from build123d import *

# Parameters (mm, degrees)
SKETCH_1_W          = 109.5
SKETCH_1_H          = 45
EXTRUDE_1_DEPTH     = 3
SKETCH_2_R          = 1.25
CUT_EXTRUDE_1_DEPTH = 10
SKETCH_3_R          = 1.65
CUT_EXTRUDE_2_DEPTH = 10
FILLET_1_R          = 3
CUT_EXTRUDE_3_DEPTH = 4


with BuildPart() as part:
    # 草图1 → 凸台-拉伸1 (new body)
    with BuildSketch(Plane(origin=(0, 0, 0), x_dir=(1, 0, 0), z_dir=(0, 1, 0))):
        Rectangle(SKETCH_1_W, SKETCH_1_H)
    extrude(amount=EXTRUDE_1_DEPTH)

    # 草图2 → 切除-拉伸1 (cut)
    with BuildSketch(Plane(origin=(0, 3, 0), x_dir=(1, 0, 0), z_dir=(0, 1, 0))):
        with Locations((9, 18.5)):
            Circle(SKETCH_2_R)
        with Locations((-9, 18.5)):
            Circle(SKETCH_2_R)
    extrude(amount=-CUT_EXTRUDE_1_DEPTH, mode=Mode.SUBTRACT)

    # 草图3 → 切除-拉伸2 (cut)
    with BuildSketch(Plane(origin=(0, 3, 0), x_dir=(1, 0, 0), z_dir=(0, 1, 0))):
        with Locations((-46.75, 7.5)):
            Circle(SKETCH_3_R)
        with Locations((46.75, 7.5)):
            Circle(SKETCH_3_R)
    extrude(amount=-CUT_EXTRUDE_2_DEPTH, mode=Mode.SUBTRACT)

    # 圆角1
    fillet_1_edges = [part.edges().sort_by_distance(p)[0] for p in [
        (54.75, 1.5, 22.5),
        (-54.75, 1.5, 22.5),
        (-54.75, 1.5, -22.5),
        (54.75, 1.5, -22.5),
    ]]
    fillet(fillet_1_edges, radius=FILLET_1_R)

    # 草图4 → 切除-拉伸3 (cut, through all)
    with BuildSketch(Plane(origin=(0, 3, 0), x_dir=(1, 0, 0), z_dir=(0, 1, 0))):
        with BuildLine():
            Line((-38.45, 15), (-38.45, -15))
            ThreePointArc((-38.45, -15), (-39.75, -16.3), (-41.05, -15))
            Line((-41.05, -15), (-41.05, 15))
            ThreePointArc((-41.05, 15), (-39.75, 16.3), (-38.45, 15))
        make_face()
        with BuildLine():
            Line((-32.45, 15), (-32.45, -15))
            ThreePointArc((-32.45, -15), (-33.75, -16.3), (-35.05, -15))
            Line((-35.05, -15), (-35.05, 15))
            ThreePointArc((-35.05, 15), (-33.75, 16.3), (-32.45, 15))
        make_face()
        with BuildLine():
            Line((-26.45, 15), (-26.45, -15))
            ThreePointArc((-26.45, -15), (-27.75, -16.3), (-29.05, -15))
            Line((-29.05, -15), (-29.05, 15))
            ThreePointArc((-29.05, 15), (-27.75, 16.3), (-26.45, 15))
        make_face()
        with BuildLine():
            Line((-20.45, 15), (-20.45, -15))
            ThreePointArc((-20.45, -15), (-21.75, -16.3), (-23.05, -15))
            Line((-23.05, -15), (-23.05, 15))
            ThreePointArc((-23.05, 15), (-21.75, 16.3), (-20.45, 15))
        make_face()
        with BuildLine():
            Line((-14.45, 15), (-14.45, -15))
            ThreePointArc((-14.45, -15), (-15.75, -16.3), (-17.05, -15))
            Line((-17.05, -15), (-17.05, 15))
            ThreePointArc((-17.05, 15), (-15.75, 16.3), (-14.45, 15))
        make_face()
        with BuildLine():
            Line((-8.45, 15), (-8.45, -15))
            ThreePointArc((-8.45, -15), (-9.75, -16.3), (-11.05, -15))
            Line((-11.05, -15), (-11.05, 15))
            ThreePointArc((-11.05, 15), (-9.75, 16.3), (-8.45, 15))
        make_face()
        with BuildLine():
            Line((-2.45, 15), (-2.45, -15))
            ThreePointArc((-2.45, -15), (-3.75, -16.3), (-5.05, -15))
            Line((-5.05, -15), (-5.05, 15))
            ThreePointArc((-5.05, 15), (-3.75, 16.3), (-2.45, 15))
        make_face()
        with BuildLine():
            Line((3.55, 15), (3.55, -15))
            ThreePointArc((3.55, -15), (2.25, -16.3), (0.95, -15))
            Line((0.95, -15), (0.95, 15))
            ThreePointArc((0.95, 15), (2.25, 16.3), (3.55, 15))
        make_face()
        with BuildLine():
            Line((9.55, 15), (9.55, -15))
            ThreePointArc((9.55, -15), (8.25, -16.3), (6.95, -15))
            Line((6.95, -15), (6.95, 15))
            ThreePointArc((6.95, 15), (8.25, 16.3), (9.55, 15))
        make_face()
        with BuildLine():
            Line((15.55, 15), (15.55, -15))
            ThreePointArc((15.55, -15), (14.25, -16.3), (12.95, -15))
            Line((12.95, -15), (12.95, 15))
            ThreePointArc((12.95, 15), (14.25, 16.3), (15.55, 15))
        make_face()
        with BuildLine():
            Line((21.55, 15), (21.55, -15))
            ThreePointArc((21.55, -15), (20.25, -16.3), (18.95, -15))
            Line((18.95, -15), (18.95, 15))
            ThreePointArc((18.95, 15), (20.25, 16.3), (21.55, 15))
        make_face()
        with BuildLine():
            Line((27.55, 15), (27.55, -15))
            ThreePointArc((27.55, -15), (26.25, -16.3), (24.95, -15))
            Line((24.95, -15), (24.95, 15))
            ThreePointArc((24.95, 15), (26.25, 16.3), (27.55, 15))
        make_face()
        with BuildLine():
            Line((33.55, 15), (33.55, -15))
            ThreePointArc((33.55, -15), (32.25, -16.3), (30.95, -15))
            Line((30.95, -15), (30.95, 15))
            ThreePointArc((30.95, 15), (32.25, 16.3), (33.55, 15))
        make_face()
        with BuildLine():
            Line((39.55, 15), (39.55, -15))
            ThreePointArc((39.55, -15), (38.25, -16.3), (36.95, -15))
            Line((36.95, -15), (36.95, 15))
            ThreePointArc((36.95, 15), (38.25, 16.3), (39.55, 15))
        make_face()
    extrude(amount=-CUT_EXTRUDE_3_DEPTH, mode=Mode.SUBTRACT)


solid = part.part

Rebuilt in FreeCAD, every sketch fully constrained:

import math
import FreeCAD as App
import Part
import Sketcher

V = App.Vector
Q = App.Units.Quantity


def edges_at(feature, points):
    """Names of the edges that pass closest to the given points."""
    edges = feature.Shape.Edges
    near = lambda p: min(range(len(edges)), key=lambda i: edges[i].distToShape(Part.Vertex(*p))[0])
    return sorted({f"Edge{near(p) + 1}" for p in points})

doc = App.newDocument("Part")
params = doc.addObject("Spreadsheet::Sheet", "Params")
for row, (alias, value) in enumerate([
    ("sketch1_height", "45 mm"),
    ("sketch1_width", "109.5 mm"),
    ("pad1_length", "3 mm"),
    ("sketch2_diameter", "2.5 mm"),
    ("pocket1_length", "10 mm"),
    ("sketch3_diameter", "3.3 mm"),
    ("pocket2_length", "10 mm"),
    ("fillet_radius", "3 mm"),
    ("sketch4_radius", "1.3 mm"),
    ("sketch4_height", "30 mm"),
], start=1):
    params.set(f"A{row}", alias)
    params.set(f"B{row}", "=" + value)
    params.setAlias(f"B{row}", alias)

body = doc.addObject("PartDesign::Body", "Body")

sketch1 = doc.addObject("Sketcher::SketchObject", "Sketch")
body.addObject(sketch1)
sketch1.AttachmentSupport = (doc.XZ_Plane, [""])
sketch1.MapMode = "FlatFace"
sketch1.addGeometry(Part.LineSegment(V(-55, -22, 0), V(-55, 22, 0)), False)
sketch1.addGeometry(Part.LineSegment(V(-55, 22, 0), V(55, 22, 0)), False)
sketch1.addGeometry(Part.LineSegment(V(55, 22, 0), V(55, -22, 0)), False)
sketch1.addGeometry(Part.LineSegment(V(55, -22, 0), V(-55, -22, 0)), False)
sketch1.addConstraint(Sketcher.Constraint("Coincident", 0, 2, 1, 1))
sketch1.addConstraint(Sketcher.Constraint("Coincident", 1, 2, 2, 1))
sketch1.addConstraint(Sketcher.Constraint("Coincident", 2, 2, 3, 1))
sketch1.addConstraint(Sketcher.Constraint("Coincident", 3, 2, 0, 1))
sketch1.addConstraint(Sketcher.Constraint("Vertical", 0))
sketch1.addConstraint(Sketcher.Constraint("Horizontal", 1))
sketch1.addConstraint(Sketcher.Constraint("Vertical", 2))
sketch1.addConstraint(Sketcher.Constraint("Horizontal", 3))
sketch1.addConstraint(Sketcher.Constraint("Symmetric", 0, 2, 2, 2, -1, 1))
sketch1.addConstraint(Sketcher.Constraint("DistanceY", 0, 1, 0, 2, Q("45 mm")))
sketch1.addConstraint(Sketcher.Constraint("DistanceX", 1, 1, 1, 2, Q("109.5 mm")))
sketch1.setExpression("Constraints[9]", "Params.sketch1_height")
sketch1.setExpression("Constraints[10]", "Params.sketch1_width")
pad1 = doc.addObject("PartDesign::Pad", "Pad")
body.addObject(pad1)
pad1.Profile = sketch1
pad1.setExpression("Length", "Params.pad1_length")
pad1.Reversed = True

sketch2 = doc.addObject("Sketcher::SketchObject", "Sketch001")
body.addObject(sketch2)
sketch2.AttachmentSupport = (doc.XZ_Plane, [""])
sketch2.MapMode = "FlatFace"
sketch2.AttachmentOffset = App.Placement(V(0, 0, -3), App.Rotation())
sketch2.addGeometry(Part.Circle(V(9, -18.5, 0), V(0, 0, 1), 1.2), False)
sketch2.addGeometry(Part.Circle(V(-9, -18.5, 0), V(0, 0, 1), 1.2), False)
sketch2.addConstraint(Sketcher.Constraint("Equal", 0, 1))
sketch2.addConstraint(Sketcher.Constraint("Symmetric", 0, 3, 1, 3, -2))
sketch2.addConstraint(Sketcher.Constraint("Diameter", 0, Q("2.5 mm")))
sketch2.addConstraint(Sketcher.Constraint("DistanceX", -1, 1, 0, 3, Q("9 mm")))
sketch2.addConstraint(Sketcher.Constraint("DistanceY", 0, 3, -1, 1, Q("18.5 mm")))
sketch2.setExpression("Constraints[2]", "Params.sketch2_diameter")
pocket1 = doc.addObject("PartDesign::Pocket", "Pocket")
body.addObject(pocket1)
pocket1.Profile = sketch2
pocket1.setExpression("Length", "Params.pocket1_length")
pocket1.Reversed = True

sketch3 = doc.addObject("Sketcher::SketchObject", "Sketch002")
body.addObject(sketch3)
sketch3.AttachmentSupport = (doc.XZ_Plane, [""])
sketch3.MapMode = "FlatFace"
sketch3.AttachmentOffset = App.Placement(V(0, 0, -3), App.Rotation())
sketch3.addGeometry(Part.Circle(V(-46.8, -7.5, 0), V(0, 0, 1), 1.6), False)
sketch3.addGeometry(Part.Circle(V(46.8, -7.5, 0), V(0, 0, 1), 1.6), False)
sketch3.addConstraint(Sketcher.Constraint("Equal", 0, 1))
sketch3.addConstraint(Sketcher.Constraint("Symmetric", 0, 3, 1, 3, -2))
sketch3.addConstraint(Sketcher.Constraint("Diameter", 0, Q("3.3 mm")))
sketch3.addConstraint(Sketcher.Constraint("DistanceY", 0, 3, -1, 1, Q("7.5 mm")))
sketch3.addConstraint(Sketcher.Constraint("DistanceX", 0, 3, 1, 3, Q("93.5 mm")))
sketch3.setExpression("Constraints[2]", "Params.sketch3_diameter")
pocket2 = doc.addObject("PartDesign::Pocket", "Pocket001")
body.addObject(pocket2)
pocket2.Profile = sketch3
pocket2.setExpression("Length", "Params.pocket2_length")
pocket2.Reversed = True
doc.recompute()

fillet = doc.addObject("PartDesign::Fillet", "Fillet")
body.addObject(fillet)
fillet.Base = (pocket2, edges_at(pocket2, [
    (54.75, 1.5, 22.5),
    (-54.75, 1.5, 22.5),
    (-54.75, 1.5, -22.5),
    (54.75, 1.5, -22.5),
]))
fillet.setExpression("Radius", "Params.fillet_radius")

sketch4 = doc.addObject("Sketcher::SketchObject", "Sketch003")
body.addObject(sketch4)
sketch4.AttachmentSupport = (doc.XZ_Plane, [""])
sketch4.MapMode = "FlatFace"
sketch4.AttachmentOffset = App.Placement(V(0, 0, -3), App.Rotation())
sketch4.addGeometry(Part.LineSegment(V(-38.5, 15, 0), V(-38.5, -15, 0)), False)
sketch4.addGeometry(Part.ArcOfCircle(Part.Circle(V(-39.8, -15, 0), V(0, 0, 1), 1.3), math.radians(180), math.radians(360)), False)
sketch4.addGeometry(Part.LineSegment(V(-41, -15, 0), V(-41, 15, 0)), False)
sketch4.addGeometry(Part.ArcOfCircle(Part.Circle(V(-39.8, 15, 0), V(0, 0, 1), 1.3), math.radians(0), math.radians(180)), False)
sketch4.addGeometry(Part.LineSegment(V(-32.5, 15, 0), V(-32.5, -15, 0)), False)
sketch4.addGeometry(Part.ArcOfCircle(Part.Circle(V(-33.8, -15, 0), V(0, 0, 1), 1.3), math.radians(180), math.radians(360)), False)
sketch4.addGeometry(Part.LineSegment(V(-35, -15, 0), V(-35, 15, 0)), False)
sketch4.addGeometry(Part.ArcOfCircle(Part.Circle(V(-33.8, 15, 0), V(0, 0, 1), 1.3), math.radians(0), math.radians(180)), False)
sketch4.addGeometry(Part.LineSegment(V(-26.4, 15, 0), V(-26.4, -15, 0)), False)
sketch4.addGeometry(Part.ArcOfCircle(Part.Circle(V(-27.8, -15, 0), V(0, 0, 1), 1.3), math.radians(180), math.radians(360)), False)
sketch4.addGeometry(Part.LineSegment(V(-29.1, -15, 0), V(-29.1, 15, 0)), False)
sketch4.addGeometry(Part.ArcOfCircle(Part.Circle(V(-27.8, 15, 0), V(0, 0, 1), 1.3), math.radians(0), math.radians(180)), False)
sketch4.addGeometry(Part.LineSegment(V(-20.4, 15, 0), V(-20.4, -15, 0)), False)
sketch4.addGeometry(Part.ArcOfCircle(Part.Circle(V(-21.8, -15, 0), V(0, 0, 1), 1.3), math.radians(180), math.radians(360)), False)
sketch4.addGeometry(Part.LineSegment(V(-23.1, -15, 0), V(-23.1, 15, 0)), False)
sketch4.addGeometry(Part.ArcOfCircle(Part.Circle(V(-21.8, 15, 0), V(0, 0, 1), 1.3), math.radians(0), math.radians(180)), False)
sketch4.addGeometry(Part.LineSegment(V(-14.4, 15, 0), V(-14.4, -15, 0)), False)
sketch4.addGeometry(Part.ArcOfCircle(Part.Circle(V(-15.8, -15, 0), V(0, 0, 1), 1.3), math.radians(180), math.radians(360)), False)
sketch4.addGeometry(Part.LineSegment(V(-17.1, -15, 0), V(-17.1, 15, 0)), False)
sketch4.addGeometry(Part.ArcOfCircle(Part.Circle(V(-15.8, 15, 0), V(0, 0, 1), 1.3), math.radians(0), math.radians(180)), False)
sketch4.addGeometry(Part.LineSegment(V(-8.4, 15, 0), V(-8.4, -15, 0)), False)
sketch4.addGeometry(Part.ArcOfCircle(Part.Circle(V(-9.8, -15, 0), V(0, 0, 1), 1.3), math.radians(180), math.radians(360)), False)
sketch4.addGeometry(Part.LineSegment(V(-11.1, -15, 0), V(-11.1, 15, 0)), False)
sketch4.addGeometry(Part.ArcOfCircle(Part.Circle(V(-9.8, 15, 0), V(0, 0, 1), 1.3), math.radians(0), math.radians(180)), False)
sketch4.addGeometry(Part.LineSegment(V(-2.5, 15, 0), V(-2.5, -15, 0)), False)
sketch4.addGeometry(Part.ArcOfCircle(Part.Circle(V(-3.8, -15, 0), V(0, 0, 1), 1.3), math.radians(180), math.radians(360)), False)
sketch4.addGeometry(Part.LineSegment(V(-5, -15, 0), V(-5, 15, 0)), False)
sketch4.addGeometry(Part.ArcOfCircle(Part.Circle(V(-3.8, 15, 0), V(0, 0, 1), 1.3), math.radians(0), math.radians(180)), False)
sketch4.addGeometry(Part.LineSegment(V(3.5, 15, 0), V(3.5, -15, 0)), False)
sketch4.addGeometry(Part.ArcOfCircle(Part.Circle(V(2.2, -15, 0), V(0, 0, 1), 1.3), math.radians(180), math.radians(360)), False)
sketch4.addGeometry(Part.LineSegment(V(0.9, -15, 0), V(0.9, 15, 0)), False)
sketch4.addGeometry(Part.ArcOfCircle(Part.Circle(V(2.2, 15, 0), V(0, 0, 1), 1.3), math.radians(0), math.radians(180)), False)
sketch4.addGeometry(Part.LineSegment(V(9.6, 15, 0), V(9.6, -15, 0)), False)
sketch4.addGeometry(Part.ArcOfCircle(Part.Circle(V(8.2, -15, 0), V(0, 0, 1), 1.3), math.radians(180), math.radians(360)), False)
sketch4.addGeometry(Part.LineSegment(V(7, -15, 0), V(7, 15, 0)), False)
sketch4.addGeometry(Part.ArcOfCircle(Part.Circle(V(8.2, 15, 0), V(0, 0, 1), 1.3), math.radians(0), math.radians(180)), False)
sketch4.addGeometry(Part.LineSegment(V(15.6, 15, 0), V(15.6, -15, 0)), False)
sketch4.addGeometry(Part.ArcOfCircle(Part.Circle(V(14.2, -15, 0), V(0, 0, 1), 1.3), math.radians(180), math.radians(360)), False)
sketch4.addGeometry(Part.LineSegment(V(12.9, -15, 0), V(12.9, 15, 0)), False)
sketch4.addGeometry(Part.ArcOfCircle(Part.Circle(V(14.2, 15, 0), V(0, 0, 1), 1.3), math.radians(0), math.radians(180)), False)
sketch4.addGeometry(Part.LineSegment(V(21.6, 15, 0), V(21.6, -15, 0)), False)
sketch4.addGeometry(Part.ArcOfCircle(Part.Circle(V(20.2, -15, 0), V(0, 0, 1), 1.3), math.radians(180), math.radians(360)), False)
sketch4.addGeometry(Part.LineSegment(V(18.9, -15, 0), V(18.9, 15, 0)), False)
sketch4.addGeometry(Part.ArcOfCircle(Part.Circle(V(20.2, 15, 0), V(0, 0, 1), 1.3), math.radians(0), math.radians(180)), False)
sketch4.addGeometry(Part.LineSegment(V(27.6, 15, 0), V(27.6, -15, 0)), False)
sketch4.addGeometry(Part.ArcOfCircle(Part.Circle(V(26.2, -15, 0), V(0, 0, 1), 1.3), math.radians(180), math.radians(360)), False)
sketch4.addGeometry(Part.LineSegment(V(24.9, -15, 0), V(24.9, 15, 0)), False)
sketch4.addGeometry(Part.ArcOfCircle(Part.Circle(V(26.2, 15, 0), V(0, 0, 1), 1.3), math.radians(0), math.radians(180)), False)
sketch4.addGeometry(Part.LineSegment(V(33.5, 15, 0), V(33.5, -15, 0)), False)
sketch4.addGeometry(Part.ArcOfCircle(Part.Circle(V(32.2, -15, 0), V(0, 0, 1), 1.3), math.radians(180), math.radians(360)), False)
sketch4.addGeometry(Part.LineSegment(V(30.9, -15, 0), V(30.9, 15, 0)), False)
sketch4.addGeometry(Part.ArcOfCircle(Part.Circle(V(32.2, 15, 0), V(0, 0, 1), 1.3), math.radians(0), math.radians(180)), False)
sketch4.addGeometry(Part.LineSegment(V(39.5, 15, 0), V(39.5, -15, 0)), False)
sketch4.addGeometry(Part.ArcOfCircle(Part.Circle(V(38.2, -15, 0), V(0, 0, 1), 1.3), math.radians(180), math.radians(360)), False)
sketch4.addGeometry(Part.LineSegment(V(37, -15, 0), V(37, 15, 0)), False)
sketch4.addGeometry(Part.ArcOfCircle(Part.Circle(V(38.2, 15, 0), V(0, 0, 1), 1.3), math.radians(0), math.radians(180)), False)
sketch4.addConstraint(Sketcher.Constraint("Tangent", 0, 2, 1, 2))
sketch4.addConstraint(Sketcher.Constraint("Tangent", 1, 1, 2, 1))
sketch4.addConstraint(Sketcher.Constraint("Tangent", 2, 2, 3, 2))
sketch4.addConstraint(Sketcher.Constraint("Tangent", 3, 1, 0, 1))
sketch4.addConstraint(Sketcher.Constraint("Tangent", 4, 2, 5, 2))
sketch4.addConstraint(Sketcher.Constraint("Tangent", 5, 1, 6, 1))
sketch4.addConstraint(Sketcher.Constraint("Tangent", 6, 2, 7, 2))
sketch4.addConstraint(Sketcher.Constraint("Tangent", 7, 1, 4, 1))
sketch4.addConstraint(Sketcher.Constraint("Tangent", 8, 2, 9, 2))
sketch4.addConstraint(Sketcher.Constraint("Tangent", 9, 1, 10, 1))
sketch4.addConstraint(Sketcher.Constraint("Tangent", 10, 2, 11, 2))
sketch4.addConstraint(Sketcher.Constraint("Tangent", 11, 1, 8, 1))
sketch4.addConstraint(Sketcher.Constraint("Tangent", 12, 2, 13, 2))
sketch4.addConstraint(Sketcher.Constraint("Tangent", 13, 1, 14, 1))
sketch4.addConstraint(Sketcher.Constraint("Tangent", 14, 2, 15, 2))
sketch4.addConstraint(Sketcher.Constraint("Tangent", 15, 1, 12, 1))
sketch4.addConstraint(Sketcher.Constraint("Tangent", 16, 2, 17, 2))
sketch4.addConstraint(Sketcher.Constraint("Tangent", 17, 1, 18, 1))
sketch4.addConstraint(Sketcher.Constraint("Tangent", 18, 2, 19, 2))
sketch4.addConstraint(Sketcher.Constraint("Tangent", 19, 1, 16, 1))
sketch4.addConstraint(Sketcher.Constraint("Tangent", 20, 2, 21, 2))
sketch4.addConstraint(Sketcher.Constraint("Tangent", 21, 1, 22, 1))
sketch4.addConstraint(Sketcher.Constraint("Tangent", 22, 2, 23, 2))
sketch4.addConstraint(Sketcher.Constraint("Tangent", 23, 1, 20, 1))
sketch4.addConstraint(Sketcher.Constraint("Tangent", 24, 2, 25, 2))
sketch4.addConstraint(Sketcher.Constraint("Tangent", 25, 1, 26, 1))
sketch4.addConstraint(Sketcher.Constraint("Tangent", 26, 2, 27, 2))
sketch4.addConstraint(Sketcher.Constraint("Tangent", 27, 1, 24, 1))
sketch4.addConstraint(Sketcher.Constraint("Tangent", 28, 2, 29, 2))
sketch4.addConstraint(Sketcher.Constraint("Tangent", 29, 1, 30, 1))
sketch4.addConstraint(Sketcher.Constraint("Tangent", 30, 2, 31, 2))
sketch4.addConstraint(Sketcher.Constraint("Tangent", 31, 1, 28, 1))
sketch4.addConstraint(Sketcher.Constraint("Tangent", 32, 2, 33, 2))
sketch4.addConstraint(Sketcher.Constraint("Tangent", 33, 1, 34, 1))
sketch4.addConstraint(Sketcher.Constraint("Tangent", 34, 2, 35, 2))
sketch4.addConstraint(Sketcher.Constraint("Tangent", 35, 1, 32, 1))
sketch4.addConstraint(Sketcher.Constraint("Tangent", 36, 2, 37, 2))
sketch4.addConstraint(Sketcher.Constraint("Tangent", 37, 1, 38, 1))
sketch4.addConstraint(Sketcher.Constraint("Tangent", 38, 2, 39, 2))
sketch4.addConstraint(Sketcher.Constraint("Tangent", 39, 1, 36, 1))
sketch4.addConstraint(Sketcher.Constraint("Tangent", 40, 2, 41, 2))
sketch4.addConstraint(Sketcher.Constraint("Tangent", 41, 1, 42, 1))
sketch4.addConstraint(Sketcher.Constraint("Tangent", 42, 2, 43, 2))
sketch4.addConstraint(Sketcher.Constraint("Tangent", 43, 1, 40, 1))
sketch4.addConstraint(Sketcher.Constraint("Tangent", 44, 2, 45, 2))
sketch4.addConstraint(Sketcher.Constraint("Tangent", 45, 1, 46, 1))
sketch4.addConstraint(Sketcher.Constraint("Tangent", 46, 2, 47, 2))
sketch4.addConstraint(Sketcher.Constraint("Tangent", 47, 1, 44, 1))
sketch4.addConstraint(Sketcher.Constraint("Tangent", 48, 2, 49, 2))
sketch4.addConstraint(Sketcher.Constraint("Tangent", 49, 1, 50, 1))
sketch4.addConstraint(Sketcher.Constraint("Tangent", 50, 2, 51, 2))
sketch4.addConstraint(Sketcher.Constraint("Tangent", 51, 1, 48, 1))
sketch4.addConstraint(Sketcher.Constraint("Tangent", 52, 2, 53, 2))
sketch4.addConstraint(Sketcher.Constraint("Tangent", 53, 1, 54, 1))
sketch4.addConstraint(Sketcher.Constraint("Tangent", 54, 2, 55, 2))
sketch4.addConstraint(Sketcher.Constraint("Tangent", 55, 1, 52, 1))
sketch4.addConstraint(Sketcher.Constraint("Vertical", 0))
sketch4.addConstraint(Sketcher.Constraint("Vertical", 2))
sketch4.addConstraint(Sketcher.Constraint("Vertical", 4))
sketch4.addConstraint(Sketcher.Constraint("Vertical", 6))
sketch4.addConstraint(Sketcher.Constraint("Vertical", 8))
sketch4.addConstraint(Sketcher.Constraint("Vertical", 10))
sketch4.addConstraint(Sketcher.Constraint("Vertical", 12))
sketch4.addConstraint(Sketcher.Constraint("Vertical", 14))
sketch4.addConstraint(Sketcher.Constraint("Vertical", 16))
sketch4.addConstraint(Sketcher.Constraint("Vertical", 18))
sketch4.addConstraint(Sketcher.Constraint("Vertical", 20))
sketch4.addConstraint(Sketcher.Constraint("Vertical", 22))
sketch4.addConstraint(Sketcher.Constraint("Vertical", 24))
sketch4.addConstraint(Sketcher.Constraint("Vertical", 26))
sketch4.addConstraint(Sketcher.Constraint("Vertical", 28))
sketch4.addConstraint(Sketcher.Constraint("Vertical", 30))
sketch4.addConstraint(Sketcher.Constraint("Vertical", 32))
sketch4.addConstraint(Sketcher.Constraint("Vertical", 34))
sketch4.addConstraint(Sketcher.Constraint("Vertical", 36))
sketch4.addConstraint(Sketcher.Constraint("Vertical", 38))
sketch4.addConstraint(Sketcher.Constraint("Vertical", 40))
sketch4.addConstraint(Sketcher.Constraint("Vertical", 42))
sketch4.addConstraint(Sketcher.Constraint("Vertical", 44))
sketch4.addConstraint(Sketcher.Constraint("Vertical", 46))
sketch4.addConstraint(Sketcher.Constraint("Vertical", 48))
sketch4.addConstraint(Sketcher.Constraint("Vertical", 50))
sketch4.addConstraint(Sketcher.Constraint("Vertical", 52))
sketch4.addConstraint(Sketcher.Constraint("Vertical", 54))
sketch4.addConstraint(Sketcher.Constraint("Equal", 3, 5))
sketch4.addConstraint(Sketcher.Constraint("Equal", 7, 9))
sketch4.addConstraint(Sketcher.Constraint("Equal", 11, 13))
sketch4.addConstraint(Sketcher.Constraint("Equal", 15, 17))
sketch4.addConstraint(Sketcher.Constraint("Equal", 19, 21))
sketch4.addConstraint(Sketcher.Constraint("Equal", 23, 25))
sketch4.addConstraint(Sketcher.Constraint("Equal", 27, 29))
sketch4.addConstraint(Sketcher.Constraint("Equal", 31, 33))
sketch4.addConstraint(Sketcher.Constraint("Equal", 35, 37))
sketch4.addConstraint(Sketcher.Constraint("Equal", 39, 41))
sketch4.addConstraint(Sketcher.Constraint("Equal", 43, 45))
sketch4.addConstraint(Sketcher.Constraint("Equal", 47, 49))
sketch4.addConstraint(Sketcher.Constraint("Equal", 51, 53))
sketch4.addConstraint(Sketcher.Constraint("Horizontal", 1, 3, 5, 3))
sketch4.addConstraint(Sketcher.Constraint("Horizontal", 3, 3, 7, 3))
sketch4.addConstraint(Sketcher.Constraint("Horizontal", 5, 3, 9, 3))
sketch4.addConstraint(Sketcher.Constraint("Horizontal", 7, 3, 11, 3))
sketch4.addConstraint(Sketcher.Constraint("Horizontal", 9, 3, 13, 3))
sketch4.addConstraint(Sketcher.Constraint("Horizontal", 11, 3, 15, 3))
sketch4.addConstraint(Sketcher.Constraint("Horizontal", 13, 3, 17, 3))
sketch4.addConstraint(Sketcher.Constraint("Horizontal", 15, 3, 19, 3))
sketch4.addConstraint(Sketcher.Constraint("Horizontal", 17, 3, 21, 3))
sketch4.addConstraint(Sketcher.Constraint("Horizontal", 19, 3, 23, 3))
sketch4.addConstraint(Sketcher.Constraint("Horizontal", 21, 3, 25, 3))
sketch4.addConstraint(Sketcher.Constraint("Horizontal", 23, 3, 27, 3))
sketch4.addConstraint(Sketcher.Constraint("Horizontal", 25, 3, 29, 3))
sketch4.addConstraint(Sketcher.Constraint("Horizontal", 27, 3, 31, 3))
sketch4.addConstraint(Sketcher.Constraint("Horizontal", 29, 3, 33, 3))
sketch4.addConstraint(Sketcher.Constraint("Horizontal", 31, 3, 35, 3))
sketch4.addConstraint(Sketcher.Constraint("Horizontal", 33, 3, 37, 3))
sketch4.addConstraint(Sketcher.Constraint("Horizontal", 35, 3, 39, 3))
sketch4.addConstraint(Sketcher.Constraint("Horizontal", 37, 3, 41, 3))
sketch4.addConstraint(Sketcher.Constraint("Horizontal", 39, 3, 43, 3))
sketch4.addConstraint(Sketcher.Constraint("Horizontal", 41, 3, 45, 3))
sketch4.addConstraint(Sketcher.Constraint("Horizontal", 43, 3, 47, 3))
sketch4.addConstraint(Sketcher.Constraint("Horizontal", 45, 3, 49, 3))
sketch4.addConstraint(Sketcher.Constraint("Horizontal", 47, 3, 51, 3))
sketch4.addConstraint(Sketcher.Constraint("Horizontal", 49, 3, 53, 3))
sketch4.addConstraint(Sketcher.Constraint("Horizontal", 51, 3, 55, 3))
sketch4.addConstraint(Sketcher.Constraint("Radius", 1, Q("1.3 mm")))
sketch4.addConstraint(Sketcher.Constraint("DistanceY", 0, 2, 0, 1, Q("30 mm")))
sketch4.addConstraint(Sketcher.Constraint("DistanceY", 1, 3, -1, 1, Q("15 mm")))
sketch4.addConstraint(Sketcher.Constraint("DistanceX", 1, 3, -1, 1, Q("39.75 mm")))
sketch4.addConstraint(Sketcher.Constraint("DistanceX", 5, 3, -1, 1, Q("33.75 mm")))
sketch4.addConstraint(Sketcher.Constraint("DistanceX", 9, 3, -1, 1, Q("27.75 mm")))
sketch4.addConstraint(Sketcher.Constraint("DistanceX", 13, 3, -1, 1, Q("21.75 mm")))
sketch4.addConstraint(Sketcher.Constraint("DistanceX", 17, 3, -1, 1, Q("15.75 mm")))
sketch4.addConstraint(Sketcher.Constraint("DistanceX", 21, 3, -1, 1, Q("9.75 mm")))
sketch4.addConstraint(Sketcher.Constraint("DistanceX", 25, 3, -1, 1, Q("3.75 mm")))
sketch4.addConstraint(Sketcher.Constraint("DistanceX", -1, 1, 29, 3, Q("2.25 mm")))
sketch4.addConstraint(Sketcher.Constraint("DistanceX", -1, 1, 33, 3, Q("8.25 mm")))
sketch4.addConstraint(Sketcher.Constraint("DistanceX", -1, 1, 37, 3, Q("14.25 mm")))
sketch4.addConstraint(Sketcher.Constraint("DistanceX", -1, 1, 41, 3, Q("20.25 mm")))
sketch4.addConstraint(Sketcher.Constraint("DistanceX", -1, 1, 45, 3, Q("26.25 mm")))
sketch4.addConstraint(Sketcher.Constraint("DistanceX", -1, 1, 49, 3, Q("32.25 mm")))
sketch4.addConstraint(Sketcher.Constraint("DistanceX", -1, 1, 53, 3, Q("38.25 mm")))
sketch4.setExpression("Constraints[123]", "Params.sketch4_radius")
sketch4.setExpression("Constraints[124]", "Params.sketch4_height")
pocket3 = doc.addObject("PartDesign::Pocket", "Pocket002")
body.addObject(pocket3)
pocket3.Profile = sketch4
pocket3.Type = "ThroughAll"
pocket3.Reversed = True

doc.recompute()
